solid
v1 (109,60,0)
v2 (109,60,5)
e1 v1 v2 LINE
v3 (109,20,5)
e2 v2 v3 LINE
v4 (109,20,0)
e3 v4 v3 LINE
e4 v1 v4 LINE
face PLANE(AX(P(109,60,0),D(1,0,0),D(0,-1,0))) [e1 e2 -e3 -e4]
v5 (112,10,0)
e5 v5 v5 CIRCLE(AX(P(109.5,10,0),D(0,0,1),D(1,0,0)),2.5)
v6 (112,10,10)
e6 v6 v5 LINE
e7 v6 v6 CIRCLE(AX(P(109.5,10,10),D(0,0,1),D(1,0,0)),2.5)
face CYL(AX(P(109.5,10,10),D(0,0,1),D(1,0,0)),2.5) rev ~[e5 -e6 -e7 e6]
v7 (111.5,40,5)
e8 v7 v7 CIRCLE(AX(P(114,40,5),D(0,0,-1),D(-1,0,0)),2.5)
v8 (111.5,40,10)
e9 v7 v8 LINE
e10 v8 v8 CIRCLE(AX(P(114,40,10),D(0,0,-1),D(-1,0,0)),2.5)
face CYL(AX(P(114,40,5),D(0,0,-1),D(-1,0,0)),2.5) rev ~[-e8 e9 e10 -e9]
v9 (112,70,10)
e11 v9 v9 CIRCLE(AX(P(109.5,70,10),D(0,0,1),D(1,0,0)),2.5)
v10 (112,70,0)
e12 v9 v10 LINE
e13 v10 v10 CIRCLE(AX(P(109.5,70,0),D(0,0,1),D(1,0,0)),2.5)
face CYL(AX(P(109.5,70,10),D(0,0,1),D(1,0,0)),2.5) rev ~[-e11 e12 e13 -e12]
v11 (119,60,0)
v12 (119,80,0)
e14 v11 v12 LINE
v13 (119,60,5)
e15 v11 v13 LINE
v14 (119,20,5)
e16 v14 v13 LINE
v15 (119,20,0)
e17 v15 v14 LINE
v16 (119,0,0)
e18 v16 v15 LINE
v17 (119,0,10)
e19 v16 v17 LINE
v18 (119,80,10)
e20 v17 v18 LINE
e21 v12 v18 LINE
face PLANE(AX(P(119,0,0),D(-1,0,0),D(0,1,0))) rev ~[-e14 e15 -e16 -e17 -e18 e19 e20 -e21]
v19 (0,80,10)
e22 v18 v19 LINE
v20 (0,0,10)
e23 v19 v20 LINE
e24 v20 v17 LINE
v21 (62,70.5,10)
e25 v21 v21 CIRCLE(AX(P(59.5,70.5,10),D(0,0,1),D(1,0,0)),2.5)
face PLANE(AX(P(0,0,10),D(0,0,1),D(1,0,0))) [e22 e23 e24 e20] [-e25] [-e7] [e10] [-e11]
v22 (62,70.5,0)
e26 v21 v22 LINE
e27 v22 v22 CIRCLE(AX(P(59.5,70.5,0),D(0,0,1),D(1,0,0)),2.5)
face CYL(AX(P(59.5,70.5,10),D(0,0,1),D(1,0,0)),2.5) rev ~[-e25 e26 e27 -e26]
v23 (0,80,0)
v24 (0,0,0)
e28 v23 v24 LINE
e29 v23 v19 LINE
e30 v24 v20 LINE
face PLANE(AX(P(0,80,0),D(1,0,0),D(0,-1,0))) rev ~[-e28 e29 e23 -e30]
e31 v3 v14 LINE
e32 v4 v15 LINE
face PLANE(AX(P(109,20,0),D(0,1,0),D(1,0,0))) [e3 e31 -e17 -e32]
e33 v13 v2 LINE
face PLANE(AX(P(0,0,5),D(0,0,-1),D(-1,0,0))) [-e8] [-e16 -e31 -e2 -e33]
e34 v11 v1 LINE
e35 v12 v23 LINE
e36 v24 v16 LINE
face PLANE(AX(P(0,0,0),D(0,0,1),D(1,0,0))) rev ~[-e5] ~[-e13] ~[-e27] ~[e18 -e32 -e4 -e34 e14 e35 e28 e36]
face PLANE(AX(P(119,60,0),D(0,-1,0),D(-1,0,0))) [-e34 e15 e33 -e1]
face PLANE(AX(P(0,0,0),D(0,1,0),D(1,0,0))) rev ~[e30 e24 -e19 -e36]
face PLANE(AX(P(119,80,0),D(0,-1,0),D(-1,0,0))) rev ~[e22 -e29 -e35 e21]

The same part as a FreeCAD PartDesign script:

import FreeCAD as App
import Part
import Sketcher
Q = App.Units.Quantity

doc = App.newDocument("Part")
body = doc.addObject("PartDesign::Body", "Body")

# Sketch on XY plane
sketch1 = doc.addObject("Sketcher::SketchObject", "Sketch")
body.addObject(sketch1)
sketch1.AttachmentSupport = (doc.XY_Plane, [""])
sketch1.MapMode = "FlatFace"
sketch1.addGeometry(Part.LineSegment(App.Vector(0, 80, 0), App.Vector(0, 0, 0)), False)
sketch1.addGeometry(Part.LineSegment(App.Vector(0, 0, 0), App.Vector(119, 0, 0)), False)
sketch1.addGeometry(Part.LineSegment(App.Vector(119, 0, 0), App.Vector(119, 80, 0)), False)
sketch1.addGeometry(Part.LineSegment(App.Vector(119, 80, 0), App.Vector(0, 80, 0)), False)
sketch1.addConstraint(Sketcher.Constraint("Coincident", 0, 2, 1, 1))
sketch1.addConstraint(Sketcher.Constraint("Coincident", 1, 2, 2, 1))
sketch1.addConstraint(Sketcher.Constraint("Coincident", 2, 2, 3, 1))
sketch1.addConstraint(Sketcher.Constraint("Coincident", 3, 2, 0, 1))
sketch1.addConstraint(Sketcher.Constraint("Vertical", 0))
sketch1.addConstraint(Sketcher.Constraint("Horizontal", 1))
sketch1.addConstraint(Sketcher.Constraint("Vertical", 2))
sketch1.addConstraint(Sketcher.Constraint("Horizontal", 3))
sketch1.addConstraint(Sketcher.Constraint("Coincident", 0, 2, -1, 1))
sketch1.addConstraint(Sketcher.Constraint("DistanceX", 1, 1, 1, 2, Q("119 mm")))
sketch1.addConstraint(Sketcher.Constraint("DistanceY", 0, 2, 0, 1, Q("80 mm")))
pad1 = doc.addObject("PartDesign::Pad", "Pad")
body.addObject(pad1)
pad1.Profile = sketch1
pad1.Length = 10

# Sketch on XY plane
sketch2 = doc.addObject("Sketcher::SketchObject", "Sketch001")
body.addObject(sketch2)
sketch2.AttachmentSupport = (doc.XY_Plane, [""])
sketch2.MapMode = "FlatFace"
sketch2.AttachmentOffset = App.Placement(App.Vector(0, 0, 10), App.Rotation())
sketch2.addGeometry(Part.Circle(App.Vector(109.5, 70, 0), App.Vector(0, 0, 1), 2.5), False)
sketch2.addGeometry(Part.Circle(App.Vector(109.5, 10, 0), App.Vector(0, 0, 1), 2.5), False)
sketch2.addConstraint(Sketcher.Constraint("Equal", 0, 1))
sketch2.addConstraint(Sketcher.Constraint("Vertical", 0, 3, 1, 3))
sketch2.addConstraint(Sketcher.Constraint("Diameter", 0, Q("5 mm")))
sketch2.addConstraint(Sketcher.Constraint("DistanceY", -1, 1, 1, 3, Q("10 mm")))
sketch2.addConstraint(Sketcher.Constraint("DistanceY", 1, 3, 0, 3, Q("60 mm")))
sketch2.addConstraint(Sketcher.Constraint("DistanceX", -1, 1, 0, 3, Q("109.5 mm")))
pocket1 = doc.addObject("PartDesign::Pocket", "Pocket")
body.addObject(pocket1)
pocket1.Profile = sketch2
pocket1.Type = "ThroughAll"

# Sketch on XY plane
sketch3 = doc.addObject("Sketcher::SketchObject", "Sketch002")
body.addObject(sketch3)
sketch3.AttachmentSupport = (doc.XY_Plane, [""])
sketch3.MapMode = "FlatFace"
sketch3.addGeometry(Part.LineSegment(App.Vector(119, 60, 0), App.Vector(119, 20, 0)), False)
sketch3.addGeometry(Part.LineSegment(App.Vector(119, 20, 0), App.Vector(109, 20, 0)), False)
sketch3.addGeometry(Part.LineSegment(App.Vector(109, 20, 0), App.Vector(109, 60, 0)), False)
sketch3.addGeometry(Part.LineSegment(App.Vector(109, 60, 0), App.Vector(119, 60, 0)), False)
sketch3.addConstraint(Sketcher.Constraint("Coincident", 0, 2, 1, 1))
sketch3.addConstraint(Sketcher.Constraint("Coincident", 1, 2, 2, 1))
sketch3.addConstraint(Sketcher.Constraint("Coincident", 2, 2, 3, 1))
sketch3.addConstraint(Sketcher.Constraint("Coincident", 3, 2, 0, 1))
sketch3.addConstraint(Sketcher.Constraint("Vertical", 0))
sketch3.addConstraint(Sketcher.Constraint("Horizontal", 1))
sketch3.addConstraint(Sketcher.Constraint("Vertical", 2))
sketch3.addConstraint(Sketcher.Constraint("Horizontal", 3))
sketch3.addConstraint(Sketcher.Constraint("DistanceX", 1, 2, 1, 1, Q("10 mm")))
sketch3.addConstraint(Sketcher.Constraint("DistanceY", 0, 2, 0, 1, Q("40 mm")))
sketch3.addConstraint(Sketcher.Constraint("DistanceY", -1, 1, 0, 2, Q("20 mm")))
sketch3.addConstraint(Sketcher.Constraint("DistanceX", -1, 1, 0, 2, Q("119 mm")))
pocket2 = doc.addObject("PartDesign::Pocket", "Pocket001")
body.addObject(pocket2)
pocket2.Profile = sketch3
pocket2.Length = 5
pocket2.Reversed = True

# Sketch on XY plane
sketch4 = doc.addObject("Sketcher::SketchObject", "Sketch003")
body.addObject(sketch4)
sketch4.AttachmentSupport = (doc.XY_Plane, [""])
sketch4.MapMode = "FlatFace"
sketch4.AttachmentOffset = App.Placement(App.Vector(0, 0, 5), App.Rotation())
sketch4.addGeometry(Part.Circle(App.Vector(114, 40, 0), App.Vector(0, 0, 1), 2.5), False)
sketch4.addConstraint(Sketcher.Constraint("Diameter", 0, Q("5 mm")))
sketch4.addConstraint(Sketcher.Constraint("DistanceY", -1, 1, 0, 3, Q("40 mm")))
sketch4.addConstraint(Sketcher.Constraint("DistanceX", -1, 1, 0, 3, Q("114 mm")))
pocket3 = doc.addObject("PartDesign::Pocket", "Pocket002")
body.addObject(pocket3)
pocket3.Profile = sketch4
pocket3.Type = "ThroughAll"
pocket3.Reversed = True

# Sketch on XY plane
sketch5 = doc.addObject("Sketcher::SketchObject", "Sketch004")
body.addObject(sketch5)
sketch5.AttachmentSupport = (doc.XY_Plane, [""])
sketch5.MapMode = "FlatFace"
sketch5.AttachmentOffset = App.Placement(App.Vector(0, 0, 10), App.Rotation())
sketch5.addGeometry(Part.Circle(App.Vector(59.5, 70.5, 0), App.Vector(0, 0, 1), 2.5), False)
sketch5.addConstraint(Sketcher.Constraint("Diameter", 0, Q("5 mm")))
sketch5.addConstraint(Sketcher.Constraint("DistanceX", -1, 1, 0, 3, Q("59.5 mm")))
sketch5.addConstraint(Sketcher.Constraint("DistanceY", -1, 1, 0, 3, Q("70.5 mm")))
pocket4 = doc.addObject("PartDesign::Pocket", "Pocket003")
body.addObject(pocket4)
pocket4.Profile = sketch5
pocket4.Type = "ThroughAll"

doc.recompute()
